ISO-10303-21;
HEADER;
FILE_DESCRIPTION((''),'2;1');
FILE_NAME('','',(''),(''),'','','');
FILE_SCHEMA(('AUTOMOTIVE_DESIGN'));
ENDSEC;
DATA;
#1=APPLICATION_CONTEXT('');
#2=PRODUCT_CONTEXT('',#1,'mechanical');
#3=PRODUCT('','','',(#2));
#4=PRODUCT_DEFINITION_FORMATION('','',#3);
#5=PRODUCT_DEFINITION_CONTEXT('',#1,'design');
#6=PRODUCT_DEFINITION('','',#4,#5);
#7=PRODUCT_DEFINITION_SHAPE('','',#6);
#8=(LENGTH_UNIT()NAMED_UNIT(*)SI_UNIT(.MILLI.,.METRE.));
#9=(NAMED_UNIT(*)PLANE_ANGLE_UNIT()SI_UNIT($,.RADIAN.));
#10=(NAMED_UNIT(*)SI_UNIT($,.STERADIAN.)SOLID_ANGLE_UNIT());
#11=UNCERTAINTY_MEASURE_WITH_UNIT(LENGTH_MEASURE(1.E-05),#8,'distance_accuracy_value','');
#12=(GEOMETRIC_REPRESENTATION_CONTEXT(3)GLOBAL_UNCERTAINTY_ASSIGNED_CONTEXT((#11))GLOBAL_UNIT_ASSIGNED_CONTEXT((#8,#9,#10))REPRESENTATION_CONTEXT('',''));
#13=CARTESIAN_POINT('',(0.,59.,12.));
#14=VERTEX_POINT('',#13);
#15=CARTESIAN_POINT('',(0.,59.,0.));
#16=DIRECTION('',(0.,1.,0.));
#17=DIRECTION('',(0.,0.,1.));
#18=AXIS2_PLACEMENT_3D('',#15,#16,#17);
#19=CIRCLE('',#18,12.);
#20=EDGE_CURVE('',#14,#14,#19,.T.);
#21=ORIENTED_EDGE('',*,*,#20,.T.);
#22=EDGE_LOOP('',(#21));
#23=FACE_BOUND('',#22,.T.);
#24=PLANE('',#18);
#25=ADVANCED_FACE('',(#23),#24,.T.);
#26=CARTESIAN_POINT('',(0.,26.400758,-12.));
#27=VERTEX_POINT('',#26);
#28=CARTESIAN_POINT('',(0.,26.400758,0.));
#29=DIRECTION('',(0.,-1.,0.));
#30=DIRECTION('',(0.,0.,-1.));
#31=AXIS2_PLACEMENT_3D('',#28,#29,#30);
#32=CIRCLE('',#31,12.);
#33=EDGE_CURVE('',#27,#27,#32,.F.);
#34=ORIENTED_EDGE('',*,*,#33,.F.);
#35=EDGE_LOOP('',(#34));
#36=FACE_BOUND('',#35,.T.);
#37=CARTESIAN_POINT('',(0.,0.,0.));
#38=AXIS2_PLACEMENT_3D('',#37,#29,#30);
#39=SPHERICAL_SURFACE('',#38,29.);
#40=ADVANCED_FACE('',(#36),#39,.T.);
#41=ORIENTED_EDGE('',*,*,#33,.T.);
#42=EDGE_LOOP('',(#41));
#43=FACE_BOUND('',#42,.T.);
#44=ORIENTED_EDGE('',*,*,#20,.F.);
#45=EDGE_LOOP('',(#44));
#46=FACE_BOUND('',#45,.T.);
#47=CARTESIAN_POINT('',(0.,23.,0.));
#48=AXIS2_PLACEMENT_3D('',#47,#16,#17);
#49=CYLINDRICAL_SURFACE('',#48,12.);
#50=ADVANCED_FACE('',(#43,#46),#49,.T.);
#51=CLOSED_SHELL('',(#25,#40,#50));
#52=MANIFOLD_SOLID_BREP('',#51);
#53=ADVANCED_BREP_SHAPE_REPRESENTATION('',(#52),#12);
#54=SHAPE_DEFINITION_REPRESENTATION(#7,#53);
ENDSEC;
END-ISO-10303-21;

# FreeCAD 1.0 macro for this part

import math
import FreeCAD as App
import Part
import Sketcher
from FreeCAD import Vector

doc = App.newDocument("Part")
body = doc.addObject("PartDesign::Body", "Body")

sketch1 = body.newObject("Sketcher::SketchObject", "Sketch")
sketch1.AttachmentSupport = (doc.getObject("XZ_Plane"), [""])
sketch1.MapMode = "FlatFace"
sketch1.addGeometry(Part.LineSegment(Vector(0, -29, 0), Vector(0, 29, 0)), False)
sketch1.addGeometry(Part.ArcOfCircle(Part.Circle(Vector(0, 0, 0), Vector(0, 0, 1), 29), math.radians(-90), math.radians(90)), False)
sketch1.addConstraint(Sketcher.Constraint("Coincident", 0, 1, 1, 1))
sketch1.addConstraint(Sketcher.Constraint("Coincident", 1, 2, 0, 2))
sketch1.addConstraint(Sketcher.Constraint("Vertical", 0))
sketch1.addConstraint(Sketcher.Constraint("Coincident", 1, 3, -1, 1))
sketch1.addConstraint(Sketcher.Constraint("PointOnObject", 0, 1, -2))
sketch1.addConstraint(Sketcher.Constraint("Radius", 1, 29.0))
revolution = body.newObject("PartDesign::Revolution", "Revolution")
revolution.Profile = sketch1
revolution.ReferenceAxis = (sketch1, ["V_Axis"])
revolution.Angle = 360

sketch2 = body.newObject("Sketcher::SketchObject", "Sketch001")
sketch2.AttachmentSupport = (doc.getObject("XZ_Plane"), [""])
sketch2.MapMode = "FlatFace"
sketch2.AttachmentOffset = App.Placement(Vector(0, 0, -29), App.Rotation())
sketch2.addGeometry(Part.Circle(Vector(0, 0, 0), Vector(0, 0, 1), 12), False)
sketch2.addConstraint(Sketcher.Constraint("Coincident", 0, 3, -1, 1))
sketch2.addConstraint(Sketcher.Constraint("Diameter", 0, 24.0))
pad1 = body.newObject("PartDesign::Pad", "Pad")
pad1.Profile = sketch2
pad1.Type = "TwoLengths"
pad1.Length = 30
pad1.Length2 = 6
pad1.Reversed = True

doc.recompute()
